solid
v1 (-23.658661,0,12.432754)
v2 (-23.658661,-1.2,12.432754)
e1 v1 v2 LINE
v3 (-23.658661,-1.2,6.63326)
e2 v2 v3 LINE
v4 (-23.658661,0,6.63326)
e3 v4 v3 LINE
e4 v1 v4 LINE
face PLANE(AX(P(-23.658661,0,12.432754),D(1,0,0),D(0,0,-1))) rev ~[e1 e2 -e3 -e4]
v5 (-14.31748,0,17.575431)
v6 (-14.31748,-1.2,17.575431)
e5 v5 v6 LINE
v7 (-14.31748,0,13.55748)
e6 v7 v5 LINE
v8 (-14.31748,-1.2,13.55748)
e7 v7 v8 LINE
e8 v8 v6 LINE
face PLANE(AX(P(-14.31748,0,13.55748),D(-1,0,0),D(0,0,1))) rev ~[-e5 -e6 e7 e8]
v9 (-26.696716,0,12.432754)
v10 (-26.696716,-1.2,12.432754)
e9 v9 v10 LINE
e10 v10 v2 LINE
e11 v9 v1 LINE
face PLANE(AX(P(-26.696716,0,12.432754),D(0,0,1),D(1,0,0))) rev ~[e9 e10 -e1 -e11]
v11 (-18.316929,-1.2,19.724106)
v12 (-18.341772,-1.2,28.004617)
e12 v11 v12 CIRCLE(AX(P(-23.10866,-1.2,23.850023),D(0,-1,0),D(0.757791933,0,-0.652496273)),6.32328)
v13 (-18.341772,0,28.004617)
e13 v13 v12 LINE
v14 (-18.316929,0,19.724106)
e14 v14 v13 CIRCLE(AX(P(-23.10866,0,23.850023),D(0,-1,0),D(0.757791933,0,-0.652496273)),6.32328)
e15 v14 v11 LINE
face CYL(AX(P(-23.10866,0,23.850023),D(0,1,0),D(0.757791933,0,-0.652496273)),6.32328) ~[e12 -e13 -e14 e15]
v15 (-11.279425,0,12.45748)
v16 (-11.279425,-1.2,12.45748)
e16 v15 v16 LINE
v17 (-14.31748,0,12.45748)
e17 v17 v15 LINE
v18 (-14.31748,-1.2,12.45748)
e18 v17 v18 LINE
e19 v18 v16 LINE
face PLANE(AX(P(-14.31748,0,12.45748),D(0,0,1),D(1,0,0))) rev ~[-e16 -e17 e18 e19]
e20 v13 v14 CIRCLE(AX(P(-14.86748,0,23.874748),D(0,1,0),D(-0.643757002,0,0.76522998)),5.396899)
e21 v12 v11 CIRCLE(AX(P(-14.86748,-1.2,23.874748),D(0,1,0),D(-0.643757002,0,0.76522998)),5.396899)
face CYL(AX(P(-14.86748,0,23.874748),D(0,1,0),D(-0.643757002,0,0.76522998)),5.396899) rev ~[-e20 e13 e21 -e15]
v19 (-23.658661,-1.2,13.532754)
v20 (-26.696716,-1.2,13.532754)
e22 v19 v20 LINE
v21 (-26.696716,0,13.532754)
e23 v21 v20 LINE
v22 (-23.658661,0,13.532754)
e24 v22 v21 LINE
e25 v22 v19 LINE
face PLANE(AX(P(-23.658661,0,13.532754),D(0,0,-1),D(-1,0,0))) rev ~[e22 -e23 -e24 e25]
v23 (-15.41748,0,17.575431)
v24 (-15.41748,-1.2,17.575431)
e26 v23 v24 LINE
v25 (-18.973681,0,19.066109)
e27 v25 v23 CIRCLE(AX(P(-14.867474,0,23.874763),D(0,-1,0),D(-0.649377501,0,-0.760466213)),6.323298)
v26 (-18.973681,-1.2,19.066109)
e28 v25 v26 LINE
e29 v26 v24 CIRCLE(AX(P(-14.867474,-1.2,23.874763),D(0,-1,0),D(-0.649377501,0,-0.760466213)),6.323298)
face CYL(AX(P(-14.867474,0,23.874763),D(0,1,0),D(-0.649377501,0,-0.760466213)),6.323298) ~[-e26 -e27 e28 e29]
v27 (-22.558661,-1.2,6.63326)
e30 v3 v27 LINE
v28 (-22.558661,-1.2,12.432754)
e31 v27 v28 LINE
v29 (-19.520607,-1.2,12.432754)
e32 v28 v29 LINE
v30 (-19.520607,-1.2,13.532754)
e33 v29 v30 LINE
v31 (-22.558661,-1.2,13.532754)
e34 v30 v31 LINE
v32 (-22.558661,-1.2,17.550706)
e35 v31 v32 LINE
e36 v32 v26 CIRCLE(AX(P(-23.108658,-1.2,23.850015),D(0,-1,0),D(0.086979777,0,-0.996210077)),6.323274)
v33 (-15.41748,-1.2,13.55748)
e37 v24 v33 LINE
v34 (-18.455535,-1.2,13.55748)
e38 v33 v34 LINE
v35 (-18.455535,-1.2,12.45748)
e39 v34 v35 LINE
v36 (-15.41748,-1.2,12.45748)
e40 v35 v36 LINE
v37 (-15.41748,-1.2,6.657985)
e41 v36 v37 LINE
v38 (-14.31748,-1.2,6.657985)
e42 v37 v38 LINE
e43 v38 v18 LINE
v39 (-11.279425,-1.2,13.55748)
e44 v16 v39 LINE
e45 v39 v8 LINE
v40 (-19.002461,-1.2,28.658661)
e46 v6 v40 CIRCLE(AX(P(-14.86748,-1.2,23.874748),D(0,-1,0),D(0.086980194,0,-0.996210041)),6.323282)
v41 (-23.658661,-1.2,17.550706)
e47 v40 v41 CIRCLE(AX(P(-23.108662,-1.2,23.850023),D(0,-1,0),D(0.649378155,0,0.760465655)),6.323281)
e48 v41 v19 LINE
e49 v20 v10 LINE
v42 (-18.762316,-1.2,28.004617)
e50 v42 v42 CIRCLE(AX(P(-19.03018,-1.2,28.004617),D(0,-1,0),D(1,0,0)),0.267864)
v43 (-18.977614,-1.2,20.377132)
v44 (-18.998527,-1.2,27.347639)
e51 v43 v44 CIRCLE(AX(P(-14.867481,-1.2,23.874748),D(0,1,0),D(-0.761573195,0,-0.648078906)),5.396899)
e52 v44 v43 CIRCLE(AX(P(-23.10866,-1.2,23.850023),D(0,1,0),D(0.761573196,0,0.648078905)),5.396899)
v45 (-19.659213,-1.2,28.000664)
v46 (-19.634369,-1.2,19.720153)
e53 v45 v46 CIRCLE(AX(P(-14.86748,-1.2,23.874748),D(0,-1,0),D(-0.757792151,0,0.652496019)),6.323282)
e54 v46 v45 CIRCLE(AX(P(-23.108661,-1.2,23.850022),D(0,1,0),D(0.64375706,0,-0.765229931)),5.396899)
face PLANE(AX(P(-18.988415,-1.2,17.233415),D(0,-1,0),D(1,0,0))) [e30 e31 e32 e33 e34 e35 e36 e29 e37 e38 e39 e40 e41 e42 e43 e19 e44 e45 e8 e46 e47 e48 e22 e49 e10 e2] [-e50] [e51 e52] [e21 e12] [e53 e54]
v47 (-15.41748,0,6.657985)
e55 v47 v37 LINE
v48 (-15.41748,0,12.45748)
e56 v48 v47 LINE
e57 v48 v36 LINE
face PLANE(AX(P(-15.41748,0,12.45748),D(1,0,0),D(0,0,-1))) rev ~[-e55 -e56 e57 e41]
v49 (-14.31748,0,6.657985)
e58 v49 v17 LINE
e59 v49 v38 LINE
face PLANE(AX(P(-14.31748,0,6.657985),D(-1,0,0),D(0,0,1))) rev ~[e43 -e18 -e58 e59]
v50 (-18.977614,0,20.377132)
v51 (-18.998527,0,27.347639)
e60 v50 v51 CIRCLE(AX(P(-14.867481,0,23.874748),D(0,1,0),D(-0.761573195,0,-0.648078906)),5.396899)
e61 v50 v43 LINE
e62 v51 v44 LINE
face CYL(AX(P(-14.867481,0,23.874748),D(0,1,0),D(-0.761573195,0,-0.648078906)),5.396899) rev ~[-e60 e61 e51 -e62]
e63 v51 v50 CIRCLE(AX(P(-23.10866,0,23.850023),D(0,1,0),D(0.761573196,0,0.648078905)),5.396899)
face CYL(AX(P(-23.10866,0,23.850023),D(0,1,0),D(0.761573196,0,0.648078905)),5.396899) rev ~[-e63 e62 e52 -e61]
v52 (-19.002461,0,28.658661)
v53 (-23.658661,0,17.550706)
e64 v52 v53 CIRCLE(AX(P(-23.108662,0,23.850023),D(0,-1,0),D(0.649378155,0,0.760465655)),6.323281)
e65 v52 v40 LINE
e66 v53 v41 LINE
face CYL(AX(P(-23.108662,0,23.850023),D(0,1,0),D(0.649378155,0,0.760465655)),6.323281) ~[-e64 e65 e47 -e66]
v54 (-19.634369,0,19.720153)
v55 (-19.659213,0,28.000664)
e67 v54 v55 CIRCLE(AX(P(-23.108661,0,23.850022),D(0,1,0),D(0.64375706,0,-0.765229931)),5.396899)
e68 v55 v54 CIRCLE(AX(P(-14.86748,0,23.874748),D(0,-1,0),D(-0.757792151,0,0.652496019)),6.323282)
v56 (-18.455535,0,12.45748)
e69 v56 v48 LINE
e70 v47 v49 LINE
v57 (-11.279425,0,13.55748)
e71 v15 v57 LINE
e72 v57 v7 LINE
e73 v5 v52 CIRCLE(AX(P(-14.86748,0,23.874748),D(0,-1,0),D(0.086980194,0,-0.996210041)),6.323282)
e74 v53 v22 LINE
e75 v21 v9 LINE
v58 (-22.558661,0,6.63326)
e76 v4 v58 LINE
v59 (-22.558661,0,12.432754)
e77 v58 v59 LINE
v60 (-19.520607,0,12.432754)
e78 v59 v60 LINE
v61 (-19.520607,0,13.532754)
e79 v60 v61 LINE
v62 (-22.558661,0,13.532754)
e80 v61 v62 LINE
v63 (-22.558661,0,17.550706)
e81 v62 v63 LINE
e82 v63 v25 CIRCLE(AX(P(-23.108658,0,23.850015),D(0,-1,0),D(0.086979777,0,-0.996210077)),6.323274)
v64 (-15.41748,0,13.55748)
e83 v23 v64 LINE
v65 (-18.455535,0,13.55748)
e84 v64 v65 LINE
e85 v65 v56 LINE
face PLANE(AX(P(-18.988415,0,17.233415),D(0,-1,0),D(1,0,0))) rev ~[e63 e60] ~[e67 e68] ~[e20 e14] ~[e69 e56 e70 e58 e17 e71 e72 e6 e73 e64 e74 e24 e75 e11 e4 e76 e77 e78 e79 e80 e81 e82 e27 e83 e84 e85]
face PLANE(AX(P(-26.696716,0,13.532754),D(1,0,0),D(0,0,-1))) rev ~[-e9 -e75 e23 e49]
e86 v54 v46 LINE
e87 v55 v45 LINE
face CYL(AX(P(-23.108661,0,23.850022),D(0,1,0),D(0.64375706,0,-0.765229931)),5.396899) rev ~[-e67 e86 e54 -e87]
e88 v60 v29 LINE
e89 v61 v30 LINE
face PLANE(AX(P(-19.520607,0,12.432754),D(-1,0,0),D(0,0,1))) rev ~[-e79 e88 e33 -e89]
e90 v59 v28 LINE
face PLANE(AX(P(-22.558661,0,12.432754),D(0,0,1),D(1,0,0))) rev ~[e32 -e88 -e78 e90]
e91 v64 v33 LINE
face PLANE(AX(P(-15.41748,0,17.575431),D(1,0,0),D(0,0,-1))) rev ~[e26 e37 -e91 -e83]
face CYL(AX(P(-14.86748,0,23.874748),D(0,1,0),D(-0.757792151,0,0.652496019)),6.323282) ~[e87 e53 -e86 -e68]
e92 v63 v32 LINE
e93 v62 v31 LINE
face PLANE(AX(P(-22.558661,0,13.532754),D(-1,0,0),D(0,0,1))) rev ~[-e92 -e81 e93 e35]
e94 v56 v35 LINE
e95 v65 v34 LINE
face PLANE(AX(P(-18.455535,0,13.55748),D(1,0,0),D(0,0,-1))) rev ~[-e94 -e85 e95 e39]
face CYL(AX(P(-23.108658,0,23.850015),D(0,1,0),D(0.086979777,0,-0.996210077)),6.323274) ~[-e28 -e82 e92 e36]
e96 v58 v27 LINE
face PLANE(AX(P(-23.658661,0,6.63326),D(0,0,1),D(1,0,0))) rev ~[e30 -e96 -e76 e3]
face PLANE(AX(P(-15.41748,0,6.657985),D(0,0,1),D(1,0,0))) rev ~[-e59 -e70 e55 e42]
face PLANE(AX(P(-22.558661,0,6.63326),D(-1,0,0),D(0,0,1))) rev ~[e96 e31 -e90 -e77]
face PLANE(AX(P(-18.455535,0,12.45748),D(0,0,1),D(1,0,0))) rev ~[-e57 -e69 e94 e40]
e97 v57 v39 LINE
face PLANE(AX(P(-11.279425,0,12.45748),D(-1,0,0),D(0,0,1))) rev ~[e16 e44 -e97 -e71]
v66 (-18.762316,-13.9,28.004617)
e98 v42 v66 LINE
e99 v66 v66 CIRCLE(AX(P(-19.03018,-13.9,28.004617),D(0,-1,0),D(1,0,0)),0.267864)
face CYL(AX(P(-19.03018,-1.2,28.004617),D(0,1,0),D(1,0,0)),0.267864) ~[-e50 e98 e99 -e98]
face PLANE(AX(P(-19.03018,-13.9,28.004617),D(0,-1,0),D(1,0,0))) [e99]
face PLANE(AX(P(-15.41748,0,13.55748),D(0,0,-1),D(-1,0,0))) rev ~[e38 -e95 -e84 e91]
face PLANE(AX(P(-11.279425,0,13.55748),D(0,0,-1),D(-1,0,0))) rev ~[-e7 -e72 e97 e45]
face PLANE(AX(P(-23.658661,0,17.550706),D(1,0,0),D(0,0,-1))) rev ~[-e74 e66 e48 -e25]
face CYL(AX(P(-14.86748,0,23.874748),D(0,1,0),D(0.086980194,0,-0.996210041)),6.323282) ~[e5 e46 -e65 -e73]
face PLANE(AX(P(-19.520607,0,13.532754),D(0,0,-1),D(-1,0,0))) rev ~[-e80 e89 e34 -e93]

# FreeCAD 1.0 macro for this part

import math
import FreeCAD as App
import Part
import Sketcher

V = App.Vector

doc = App.newDocument("Part")
body = doc.addObject("PartDesign::Body", "Body")

# Sketch on XZ plane
sketch1 = doc.addObject("Sketcher::SketchObject", "Sketch")
body.addObject(sketch1)
sketch1.AttachmentSupport = (doc.XZ_Plane, [""])
sketch1.MapMode = "FlatFace"
sketch1.addGeometry([
    Part.LineSegment(V(-22.6, 13.5, 0), V(-22.6, 17.6, 0)),  # 0
    Part.ArcOfCircle(Part.Circle(V(-23.1, 23.9, 0), V(0, 0, 1), 6.3), math.radians(-85), math.radians(-49)),  # 1
    Part.ArcOfCircle(Part.Circle(V(-14.9, 23.9, 0), V(0, 0, 1), 6.3), math.radians(-130), math.radians(-95)),  # 2
    Part.LineSegment(V(-15.4, 17.6, 0), V(-15.4, 13.6, 0)),  # 3
    Part.LineSegment(V(-15.4, 13.6, 0), V(-18.5, 13.6, 0)),  # 4
    Part.LineSegment(V(-18.5, 13.6, 0), V(-18.5, 12.5, 0)),  # 5
    Part.LineSegment(V(-18.5, 12.5, 0), V(-15.4, 12.5, 0)),  # 6
    Part.LineSegment(V(-15.4, 12.5, 0), V(-15.4, 6.7, 0)),  # 7
    Part.LineSegment(V(-15.4, 6.7, 0), V(-14.3, 6.7, 0)),  # 8
    Part.LineSegment(V(-14.3, 6.7, 0), V(-14.3, 12.5, 0)),  # 9
    Part.LineSegment(V(-14.3, 12.5, 0), V(-11.3, 12.5, 0)),  # 10
    Part.LineSegment(V(-11.3, 12.5, 0), V(-11.3, 13.6, 0)),  # 11
    Part.LineSegment(V(-11.3, 13.6, 0), V(-14.3, 13.6, 0)),  # 12
    Part.LineSegment(V(-14.3, 13.6, 0), V(-14.3, 17.6, 0)),  # 13
    Part.ArcOfCircle(Part.Circle(V(-14.9, 23.9, 0), V(0, 0, 1), 6.3), math.radians(-85), math.radians(131)),  # 14
    Part.ArcOfCircle(Part.Circle(V(-23.1, 23.9, 0), V(0, 0, 1), 6.3), math.radians(50), math.radians(265)),  # 15
    Part.LineSegment(V(-23.7, 17.6, 0), V(-23.7, 13.5, 0)),  # 16
    Part.LineSegment(V(-23.7, 13.5, 0), V(-26.7, 13.5, 0)),  # 17
    Part.LineSegment(V(-26.7, 13.5, 0), V(-26.7, 12.4, 0)),  # 18
    Part.LineSegment(V(-26.7, 12.4, 0), V(-23.7, 12.4, 0)),  # 19
    Part.LineSegment(V(-23.7, 12.4, 0), V(-23.7, 6.6, 0)),  # 20
    Part.LineSegment(V(-23.7, 6.6, 0), V(-22.6, 6.6, 0)),  # 21
    Part.LineSegment(V(-22.6, 6.6, 0), V(-22.6, 12.4, 0)),  # 22
    Part.LineSegment(V(-22.6, 12.4, 0), V(-19.5, 12.4, 0)),  # 23
    Part.LineSegment(V(-19.5, 12.4, 0), V(-19.5, 13.5, 0)),  # 24
    Part.LineSegment(V(-19.5, 13.5, 0), V(-22.6, 13.5, 0)),  # 25
    Part.ArcOfCircle(Part.Circle(V(-14.9, 23.9, 0), V(0, 0, 1), 6.3), math.radians(139), math.radians(221)),  # 26
    Part.ArcOfCircle(Part.Circle(V(-23.1, 23.9, 0), V(0, 0, 1), 5.4), math.radians(50), math.radians(310)),  # 27
    Part.ArcOfCircle(Part.Circle(V(-23.1, 23.9, 0), V(0, 0, 1), 5.4), math.radians(-40), math.radians(40)),  # 28
    Part.ArcOfCircle(Part.Circle(V(-14.9, 23.9, 0), V(0, 0, 1), 5.4), math.radians(140), math.radians(220)),  # 29
    Part.ArcOfCircle(Part.Circle(V(-23.1, 23.9, 0), V(0, 0, 1), 6.3), math.radians(-41), math.radians(41)),  # 30
    Part.ArcOfCircle(Part.Circle(V(-14.9, 23.9, 0), V(0, 0, 1), 5.4), math.radians(-130), math.radians(130)),  # 31
], False)
sketch1.addConstraint([
    Sketcher.Constraint("Coincident", 0, 2, 1, 1),
    Sketcher.Constraint("Coincident", 1, 2, 2, 1),
    Sketcher.Constraint("Coincident", 2, 2, 3, 1),
    Sketcher.Constraint("Coincident", 3, 2, 4, 1),
    Sketcher.Constraint("Coincident", 4, 2, 5, 1),
    Sketcher.Constraint("Coincident", 5, 2, 6, 1),
    Sketcher.Constraint("Coincident", 6, 2, 7, 1),
    Sketcher.Constraint("Coincident", 7, 2, 8, 1),
    Sketcher.Constraint("Coincident", 8, 2, 9, 1),
    Sketcher.Constraint("Coincident", 9, 2, 10, 1),
    Sketcher.Constraint("Coincident", 10, 2, 11, 1),
    Sketcher.Constraint("Coincident", 11, 2, 12, 1),
    Sketcher.Constraint("Coincident", 12, 2, 13, 1),
    Sketcher.Constraint("Coincident", 13, 2, 14, 1),
    Sketcher.Constraint("Coincident", 14, 2, 15, 1),
    Sketcher.Constraint("Coincident", 15, 2, 16, 1),
    Sketcher.Constraint("Coincident", 16, 2, 17, 1),
    Sketcher.Constraint("Coincident", 17, 2, 18, 1),
    Sketcher.Constraint("Coincident", 18, 2, 19, 1),
    Sketcher.Constraint("Coincident", 19, 2, 20, 1),
    Sketcher.Constraint("Coincident", 20, 2, 21, 1),
    Sketcher.Constraint("Coincident", 21, 2, 22, 1),
    Sketcher.Constraint("Coincident", 22, 2, 23, 1),
    Sketcher.Constraint("Coincident", 23, 2, 24, 1),
    Sketcher.Constraint("Coincident", 24, 2, 25, 1),
    Sketcher.Constraint("Coincident", 25, 2, 0, 1),
    Sketcher.Constraint("Coincident", 26, 1, 27, 1),
    Sketcher.Constraint("Coincident", 27, 2, 26, 2),
    Sketcher.Constraint("Coincident", 28, 1, 29, 2),
    Sketcher.Constraint("Coincident", 29, 1, 28, 2),
    Sketcher.Constraint("Coincident", 30, 1, 31, 1),
    Sketcher.Constraint("Coincident", 31, 2, 30, 2),
    Sketcher.Constraint("Vertical", 0),
    Sketcher.Constraint("Vertical", 3),
    Sketcher.Constraint("Horizontal", 4),
    Sketcher.Constraint("Vertical", 5),
    Sketcher.Constraint("Horizontal", 6),
    Sketcher.Constraint("Vertical", 7),
    Sketcher.Constraint("Horizontal", 8),
    Sketcher.Constraint("Vertical", 9),
    Sketcher.Constraint("Horizontal", 10),
    Sketcher.Constraint("Vertical", 11),
    Sketcher.Constraint("Horizontal", 12),
    Sketcher.Constraint("Vertical", 13),
    Sketcher.Constraint("Vertical", 16),
    Sketcher.Constraint("Horizontal", 17),
    Sketcher.Constraint("Vertical", 18),
    Sketcher.Constraint("Horizontal", 19),
    Sketcher.Constraint("Vertical", 20),
    Sketcher.Constraint("Horizontal", 21),
    Sketcher.Constraint("Vertical", 22),
    Sketcher.Constraint("Horizontal", 23),
    Sketcher.Constraint("Vertical", 24),
    Sketcher.Constraint("Horizontal", 25),
    Sketcher.Constraint("Coincident", 15, 3, 1, 3),
    Sketcher.Constraint("Coincident", 26, 3, 14, 3),
    Sketcher.Constraint("Coincident", 27, 3, 1, 3),
    Sketcher.Constraint("Coincident", 28, 3, 1, 3),
    Sketcher.Constraint("Coincident", 29, 3, 14, 3),
    Sketcher.Constraint("Coincident", 30, 3, 1, 3),
    Sketcher.Constraint("Coincident", 31, 3, 14, 3),
    Sketcher.Constraint("Equal", 14, 15),
    Sketcher.Constraint("Equal", 15, 26),
    Sketcher.Constraint("Equal", 27, 28),
    Sketcher.Constraint("Equal", 28, 29),
    Sketcher.Constraint("Equal", 26, 30),
    Sketcher.Constraint("Equal", 29, 31),
    Sketcher.Constraint("Horizontal", 6, 2, 9, 2),
    Sketcher.Constraint("Horizontal", 4, 2, 11, 2),
    Sketcher.Constraint("Horizontal", 2, 2, 13, 2),
    Sketcher.Constraint("Horizontal", 0, 2, 15, 2),
    Sketcher.Constraint("Horizontal", 19, 2, 22, 2),
    Sketcher.Constraint("Horizontal", 17, 2, 24, 2),
    Sketcher.Constraint("Vertical", 3, 2, 6, 2),
    Sketcher.Constraint("Vertical", 9, 2, 12, 2),
    Sketcher.Constraint("Vertical", 16, 2, 19, 2),
    Sketcher.Constraint("Vertical", 0, 2, 21, 2),
    Sketcher.Constraint("Equal", 6, 10),
    Sketcher.Constraint("Equal", 12, 17),
    Sketcher.Constraint("Equal", 8, 21),
    Sketcher.Constraint("Equal", 19, 23),
    Sketcher.Constraint("Equal", 0, 3),
    Sketcher.Constraint("Equal", 21, 5),
    Sketcher.Constraint("Equal", 11, 18),
    Sketcher.Constraint("Equal", 9, 20),
    Sketcher.Constraint("DistanceX", 8, 1, 8, 2, 1.1),
    Sketcher.Constraint("Radius", 27, 5.396899),
    Sketcher.Constraint("Radius", 14, 6.323282),
    Sketcher.Constraint("DistanceX", 27, 3, 0, 2, 0.55),
    Sketcher.Constraint("DistanceX", 2, 2, 31, 3, 0.55),
    Sketcher.Constraint("Radius", 2, 6.323298),
    Sketcher.Constraint("DistanceY", 3, 2, 3, 1, 4.017951),
    Sketcher.Constraint("DistanceX", 1, 2, 2, 2, 3.556201),
    Sketcher.Constraint("DistanceX", 30, 3, 14, 2, 4.106199),
    Sketcher.Constraint("DistanceY", 2, 2, 28, 1, 2.801701),
    Sketcher.Constraint("DistanceX", 4, 2, 4, 1, 3.038055),
    Sketcher.Constraint("DistanceY", 7, 2, 7, 1, 5.799495),
    Sketcher.Constraint("DistanceX", 14, 3, -1, 1, 14.86748),
    Sketcher.Constraint("DistanceY", -1, 1, 27, 3, 23.850022),
])
pad1 = doc.addObject("PartDesign::Pad", "Pad")
body.addObject(pad1)
pad1.Profile = sketch1
pad1.Length = 1.2

# Sketch on XZ plane
sketch2 = doc.addObject("Sketcher::SketchObject", "Sketch001")
body.addObject(sketch2)
sketch2.AttachmentSupport = (doc.XZ_Plane, [""])
sketch2.MapMode = "FlatFace"
sketch2.AttachmentOffset = App.Placement(V(0, 0, 1.2), App.Rotation())
sketch2.addGeometry(Part.Circle(V(-19.03, 28, 0), V(0, 0, 1), 0.27), False)
sketch2.addConstraint([
    Sketcher.Constraint("Diameter", 0, 0.535728),
    Sketcher.Constraint("DistanceX", 0, 3, -1, 1, 19.03018),
    Sketcher.Constraint("DistanceY", -1, 1, 0, 3, 28.004617),
])
pad2 = doc.addObject("PartDesign::Pad", "Pad001")
body.addObject(pad2)
pad2.Profile = sketch2
pad2.Length = 12.7

doc.recompute()
